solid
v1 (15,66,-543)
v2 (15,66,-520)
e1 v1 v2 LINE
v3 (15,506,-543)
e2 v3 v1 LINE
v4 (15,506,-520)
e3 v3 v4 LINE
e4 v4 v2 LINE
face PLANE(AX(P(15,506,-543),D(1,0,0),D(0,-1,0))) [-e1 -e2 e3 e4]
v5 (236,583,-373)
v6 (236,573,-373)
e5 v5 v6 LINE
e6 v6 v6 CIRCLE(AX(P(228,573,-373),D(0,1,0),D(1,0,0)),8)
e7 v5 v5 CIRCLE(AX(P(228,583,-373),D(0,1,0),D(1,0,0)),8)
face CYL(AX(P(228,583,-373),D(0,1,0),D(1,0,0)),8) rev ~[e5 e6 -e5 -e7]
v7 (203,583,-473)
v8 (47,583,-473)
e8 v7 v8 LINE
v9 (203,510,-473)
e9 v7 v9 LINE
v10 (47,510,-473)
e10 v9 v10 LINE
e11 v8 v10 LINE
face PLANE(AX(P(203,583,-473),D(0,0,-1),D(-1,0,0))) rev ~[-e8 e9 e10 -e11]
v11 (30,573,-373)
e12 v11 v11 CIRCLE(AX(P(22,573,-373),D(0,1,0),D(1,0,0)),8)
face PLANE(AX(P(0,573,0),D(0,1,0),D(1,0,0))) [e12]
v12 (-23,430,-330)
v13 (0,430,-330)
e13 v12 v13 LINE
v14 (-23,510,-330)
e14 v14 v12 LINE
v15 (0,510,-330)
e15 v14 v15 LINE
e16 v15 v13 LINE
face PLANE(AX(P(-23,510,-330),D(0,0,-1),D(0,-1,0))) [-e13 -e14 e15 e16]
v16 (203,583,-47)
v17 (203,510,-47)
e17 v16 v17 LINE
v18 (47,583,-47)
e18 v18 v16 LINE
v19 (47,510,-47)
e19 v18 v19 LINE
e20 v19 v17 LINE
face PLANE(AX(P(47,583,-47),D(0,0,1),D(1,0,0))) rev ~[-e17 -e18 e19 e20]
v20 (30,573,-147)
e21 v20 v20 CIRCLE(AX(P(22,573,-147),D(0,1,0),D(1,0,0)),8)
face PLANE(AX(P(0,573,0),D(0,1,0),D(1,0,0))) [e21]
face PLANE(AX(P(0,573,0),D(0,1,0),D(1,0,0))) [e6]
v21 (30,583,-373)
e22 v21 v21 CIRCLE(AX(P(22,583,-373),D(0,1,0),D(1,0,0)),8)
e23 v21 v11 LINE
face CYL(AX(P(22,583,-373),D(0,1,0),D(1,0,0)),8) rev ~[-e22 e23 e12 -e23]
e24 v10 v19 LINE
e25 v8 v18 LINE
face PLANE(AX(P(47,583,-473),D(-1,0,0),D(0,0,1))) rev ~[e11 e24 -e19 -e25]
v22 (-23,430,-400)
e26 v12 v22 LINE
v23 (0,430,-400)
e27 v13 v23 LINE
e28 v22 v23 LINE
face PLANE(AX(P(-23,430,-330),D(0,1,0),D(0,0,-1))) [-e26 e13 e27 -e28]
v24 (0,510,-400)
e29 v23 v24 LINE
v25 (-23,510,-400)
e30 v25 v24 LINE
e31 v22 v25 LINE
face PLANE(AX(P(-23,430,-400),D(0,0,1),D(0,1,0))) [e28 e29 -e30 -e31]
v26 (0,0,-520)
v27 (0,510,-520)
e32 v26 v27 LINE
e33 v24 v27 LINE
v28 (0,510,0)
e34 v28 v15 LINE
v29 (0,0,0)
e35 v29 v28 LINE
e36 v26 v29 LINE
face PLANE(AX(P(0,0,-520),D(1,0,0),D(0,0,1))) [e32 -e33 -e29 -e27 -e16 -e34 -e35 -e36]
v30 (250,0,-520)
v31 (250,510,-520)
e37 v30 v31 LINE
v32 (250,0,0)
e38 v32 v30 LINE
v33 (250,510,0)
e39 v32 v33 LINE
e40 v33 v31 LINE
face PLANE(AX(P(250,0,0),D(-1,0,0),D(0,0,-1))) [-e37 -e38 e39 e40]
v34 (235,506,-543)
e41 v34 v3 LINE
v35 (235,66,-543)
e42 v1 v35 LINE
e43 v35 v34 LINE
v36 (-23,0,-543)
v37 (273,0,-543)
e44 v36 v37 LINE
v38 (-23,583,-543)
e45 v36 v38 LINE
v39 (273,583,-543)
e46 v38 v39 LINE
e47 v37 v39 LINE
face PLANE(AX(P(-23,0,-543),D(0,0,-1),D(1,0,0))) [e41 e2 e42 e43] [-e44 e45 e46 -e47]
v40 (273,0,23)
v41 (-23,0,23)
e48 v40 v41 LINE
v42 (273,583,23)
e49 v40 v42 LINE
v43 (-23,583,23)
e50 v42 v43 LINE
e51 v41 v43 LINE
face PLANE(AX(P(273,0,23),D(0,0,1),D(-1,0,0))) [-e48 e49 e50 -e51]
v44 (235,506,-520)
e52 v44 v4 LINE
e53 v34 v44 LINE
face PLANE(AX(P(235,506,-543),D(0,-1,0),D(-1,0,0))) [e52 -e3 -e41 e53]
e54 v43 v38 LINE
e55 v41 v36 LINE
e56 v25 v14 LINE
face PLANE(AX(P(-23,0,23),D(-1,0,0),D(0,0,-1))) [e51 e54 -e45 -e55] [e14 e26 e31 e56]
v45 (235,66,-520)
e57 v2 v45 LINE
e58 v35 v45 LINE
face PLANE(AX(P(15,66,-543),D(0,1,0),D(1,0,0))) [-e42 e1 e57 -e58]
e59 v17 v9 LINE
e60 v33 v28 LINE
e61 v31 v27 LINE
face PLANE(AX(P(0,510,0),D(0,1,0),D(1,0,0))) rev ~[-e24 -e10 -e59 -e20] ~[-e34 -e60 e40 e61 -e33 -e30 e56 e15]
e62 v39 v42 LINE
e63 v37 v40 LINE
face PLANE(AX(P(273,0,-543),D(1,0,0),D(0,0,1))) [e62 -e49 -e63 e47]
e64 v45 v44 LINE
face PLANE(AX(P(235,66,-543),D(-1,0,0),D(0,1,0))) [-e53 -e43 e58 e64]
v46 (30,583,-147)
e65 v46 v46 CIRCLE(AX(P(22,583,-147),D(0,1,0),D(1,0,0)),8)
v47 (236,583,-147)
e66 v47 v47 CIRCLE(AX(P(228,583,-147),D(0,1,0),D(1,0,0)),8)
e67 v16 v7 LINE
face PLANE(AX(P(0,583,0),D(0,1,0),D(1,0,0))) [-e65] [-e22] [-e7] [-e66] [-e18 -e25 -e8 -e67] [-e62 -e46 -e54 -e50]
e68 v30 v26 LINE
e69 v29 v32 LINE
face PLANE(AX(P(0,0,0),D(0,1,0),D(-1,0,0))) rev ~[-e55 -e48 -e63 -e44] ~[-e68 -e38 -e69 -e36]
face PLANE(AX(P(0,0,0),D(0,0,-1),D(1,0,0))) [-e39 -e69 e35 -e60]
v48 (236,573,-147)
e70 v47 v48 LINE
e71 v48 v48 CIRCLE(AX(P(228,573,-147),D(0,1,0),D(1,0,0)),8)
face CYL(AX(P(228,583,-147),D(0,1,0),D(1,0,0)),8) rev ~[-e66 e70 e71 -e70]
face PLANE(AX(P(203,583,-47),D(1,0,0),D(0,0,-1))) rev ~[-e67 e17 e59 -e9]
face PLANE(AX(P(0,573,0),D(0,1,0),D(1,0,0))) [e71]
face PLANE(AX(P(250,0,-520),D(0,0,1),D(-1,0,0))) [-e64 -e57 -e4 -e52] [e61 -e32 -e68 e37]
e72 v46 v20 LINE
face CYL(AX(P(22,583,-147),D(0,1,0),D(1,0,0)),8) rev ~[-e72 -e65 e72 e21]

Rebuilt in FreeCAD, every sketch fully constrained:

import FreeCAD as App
import Part
import Sketcher

doc = App.newDocument("Part")
body = doc.addObject("PartDesign::Body", "Body")

# Sketch on XZ plane
sketch1 = doc.addObject("Sketcher::SketchObject", "Sketch")
body.addObject(sketch1)
sketch1.AttachmentSupport = (doc.XZ_Plane, [""])
sketch1.MapMode = "FlatFace"
sketch1.addGeometry([
    Part.LineSegment(App.Vector(273, -543, 0), App.Vector(-23, -543, 0)),  # 0
    Part.LineSegment(App.Vector(-23, -543, 0), App.Vector(-23, 23, 0)),  # 1
    Part.LineSegment(App.Vector(-23, 23, 0), App.Vector(273, 23, 0)),  # 2
    Part.LineSegment(App.Vector(273, 23, 0), App.Vector(273, -543, 0)),  # 3
    Part.LineSegment(App.Vector(250, 0, 0), App.Vector(0, 0, 0)),  # 4
    Part.LineSegment(App.Vector(0, 0, 0), App.Vector(0, -520, 0)),  # 5
    Part.LineSegment(App.Vector(0, -520, 0), App.Vector(250, -520, 0)),  # 6
    Part.LineSegment(App.Vector(250, -520, 0), App.Vector(250, 0, 0)),  # 7
], False)
sketch1.addConstraint([
    Sketcher.Constraint("Coincident", 0, 2, 1, 1),
    Sketcher.Constraint("Coincident", 1, 2, 2, 1),
    Sketcher.Constraint("Coincident", 2, 2, 3, 1),
    Sketcher.Constraint("Coincident", 3, 2, 0, 1),
    Sketcher.Constraint("Coincident", 4, 2, 5, 1),
    Sketcher.Constraint("Coincident", 5, 2, 6, 1),
    Sketcher.Constraint("Coincident", 6, 2, 7, 1),
    Sketcher.Constraint("Coincident", 7, 2, 4, 1),
    Sketcher.Constraint("Horizontal", 0),
    Sketcher.Constraint("Vertical", 1),
    Sketcher.Constraint("Horizontal", 2),
    Sketcher.Constraint("Vertical", 3),
    Sketcher.Constraint("Horizontal", 4),
    Sketcher.Constraint("Vertical", 5),
    Sketcher.Constraint("Horizontal", 6),
    Sketcher.Constraint("Vertical", 7),
    Sketcher.Constraint("Coincident", 4, 2, -1, 1),
    Sketcher.Constraint("DistanceX", 4, 2, 4, 1, 250.0),
    Sketcher.Constraint("DistanceY", 5, 2, 5, 1, 520.0),
    Sketcher.Constraint("DistanceX", 0, 2, -1, 1, 23.0),
    Sketcher.Constraint("DistanceY", -1, 1, 1, 2, 23.0),
    Sketcher.Constraint("DistanceY", 0, 2, 5, 2, 23.0),
    Sketcher.Constraint("DistanceX", 6, 2, 3, 2, 23.0),
])
pad1 = doc.addObject("PartDesign::Pad", "Pad")
body.addObject(pad1)
pad1.Profile = sketch1
pad1.Length = 583
pad1.Reversed = True

# Sketch on XY plane
sketch2 = doc.addObject("Sketcher::SketchObject", "Sketch001")
body.addObject(sketch2)
sketch2.AttachmentSupport = (doc.XY_Plane, [""])
sketch2.MapMode = "FlatFace"
sketch2.AttachmentOffset = App.Placement(App.Vector(0, 0, -543), App.Rotation())
sketch2.addGeometry([
    Part.LineSegment(App.Vector(15, 506, 0), App.Vector(235, 506, 0)),
    Part.LineSegment(App.Vector(235, 506, 0), App.Vector(235, 66, 0)),
    Part.LineSegment(App.Vector(235, 66, 0), App.Vector(15, 66, 0)),
    Part.LineSegment(App.Vector(15, 66, 0), App.Vector(15, 506, 0)),
], False)
sketch2.addConstraint([
    Sketcher.Constraint("Coincident", 0, 2, 1, 1),
    Sketcher.Constraint("Coincident", 1, 2, 2, 1),
    Sketcher.Constraint("Coincident", 2, 2, 3, 1),
    Sketcher.Constraint("Coincident", 3, 2, 0, 1),
    Sketcher.Constraint("Horizontal", 0),
    Sketcher.Constraint("Vertical", 1),
    Sketcher.Constraint("Horizontal", 2),
    Sketcher.Constraint("Vertical", 3),
    Sketcher.Constraint("DistanceX", 0, 1, 0, 2, 220.0),
    Sketcher.Constraint("DistanceY", 1, 2, 1, 1, 440.0),
    Sketcher.Constraint("DistanceX", -1, 1, 0, 2, 235.0),
    Sketcher.Constraint("DistanceY", -1, 1, 0, 2, 506.0),
])
pocket1 = doc.addObject("PartDesign::Pocket", "Pocket")
body.addObject(pocket1)
pocket1.Profile = sketch2
pocket1.Length = 23
pocket1.Reversed = True

# Sketch on YZ plane
sketch3 = doc.addObject("Sketcher::SketchObject", "Sketch002")
body.addObject(sketch3)
sketch3.AttachmentSupport = (doc.YZ_Plane, [""])
sketch3.MapMode = "FlatFace"
sketch3.AttachmentOffset = App.Placement(App.Vector(0, 0, -23), App.Rotation())
sketch3.addGeometry([
    Part.LineSegment(App.Vector(510, -330, 0), App.Vector(510, -400, 0)),
    Part.LineSegment(App.Vector(510, -400, 0), App.Vector(430, -400, 0)),
    Part.LineSegment(App.Vector(430, -400, 0), App.Vector(430, -330, 0)),
    Part.LineSegment(App.Vector(430, -330, 0), App.Vector(510, -330, 0)),
], False)
sketch3.addConstraint([
    Sketcher.Constraint("Coincident", 0, 2, 1, 1),
    Sketcher.Constraint("Coincident", 1, 2, 2, 1),
    Sketcher.Constraint("Coincident", 2, 2, 3, 1),
    Sketcher.Constraint("Coincident", 3, 2, 0, 1),
    Sketcher.Constraint("Vertical", 0),
    Sketcher.Constraint("Horizontal", 1),
    Sketcher.Constraint("Vertical", 2),
    Sketcher.Constraint("Horizontal", 3),
    Sketcher.Constraint("DistanceX", 1, 2, 1, 1, 80.0),
    Sketcher.Constraint("DistanceY", 0, 2, 0, 1, 70.0),
    Sketcher.Constraint("DistanceX", -1, 1, 1, 2, 430.0),
    Sketcher.Constraint("DistanceY", 0, 2, -1, 1, 400.0),
])
pocket2 = doc.addObject("PartDesign::Pocket", "Pocket001")
body.addObject(pocket2)
pocket2.Profile = sketch3
pocket2.Length = 23
pocket2.Reversed = True

# Sketch on XZ plane
sketch4 = doc.addObject("Sketcher::SketchObject", "Sketch003")
body.addObject(sketch4)
sketch4.AttachmentSupport = (doc.XZ_Plane, [""])
sketch4.MapMode = "FlatFace"
sketch4.AttachmentOffset = App.Placement(App.Vector(0, 0, -583), App.Rotation())
sketch4.addGeometry([
    Part.LineSegment(App.Vector(0, 0, 0), App.Vector(250, 0, 0)),  # 0
    Part.LineSegment(App.Vector(250, 0, 0), App.Vector(250, -520, 0)),  # 1
    Part.LineSegment(App.Vector(250, -520, 0), App.Vector(0, -520, 0)),  # 2
    Part.LineSegment(App.Vector(0, -520, 0), App.Vector(0, 0, 0)),  # 3
    Part.LineSegment(App.Vector(203, -47, 0), App.Vector(47, -47, 0)),  # 4
    Part.LineSegment(App.Vector(47, -47, 0), App.Vector(47, -473, 0)),  # 5
    Part.LineSegment(App.Vector(47, -473, 0), App.Vector(203, -473, 0)),  # 6
    Part.LineSegment(App.Vector(203, -473, 0), App.Vector(203, -47, 0)),  # 7
], False)
sketch4.addConstraint([
    Sketcher.Constraint("Coincident", 0, 2, 1, 1),
    Sketcher.Constraint("Coincident", 1, 2, 2, 1),
    Sketcher.Constraint("Coincident", 2, 2, 3, 1),
    Sketcher.Constraint("Coincident", 3, 2, 0, 1),
    Sketcher.Constraint("Coincident", 4, 2, 5, 1),
    Sketcher.Constraint("Coincident", 5, 2, 6, 1),
    Sketcher.Constraint("Coincident", 6, 2, 7, 1),
    Sketcher.Constraint("Coincident", 7, 2, 4, 1),
    Sketcher.Constraint("Horizontal", 0),
    Sketcher.Constraint("Vertical", 1),
    Sketcher.Constraint("Horizontal", 2),
    Sketcher.Constraint("Vertical", 3),
    Sketcher.Constraint("Horizontal", 4),
    Sketcher.Constraint("Vertical", 5),
    Sketcher.Constraint("Horizontal", 6),
    Sketcher.Constraint("Vertical", 7),
    Sketcher.Constraint("Coincident", 3, 2, -1, 1),
    Sketcher.Constraint("DistanceX", -1, 1, 4, 2, 47.0),
    Sketcher.Constraint("DistanceY", 4, 2, -1, 1, 47.0),
    Sketcher.Constraint("DistanceY", 2, 2, 5, 2, 47.0),
    Sketcher.Constraint("DistanceX", 6, 2, 1, 2, 47.0),
    Sketcher.Constraint("DistanceX", 0, 1, 0, 2, 250.0),
    Sketcher.Constraint("DistanceY", 1, 2, 1, 1, 520.0),
])
pad2 = doc.addObject("PartDesign::Pad", "Pad001")
body.addObject(pad2)
pad2.Profile = sketch4
pad2.Length = 73

# Sketch on XZ plane
sketch5 = doc.addObject("Sketcher::SketchObject", "Sketch004")
body.addObject(sketch5)
sketch5.AttachmentSupport = (doc.XZ_Plane, [""])
sketch5.MapMode = "FlatFace"
sketch5.AttachmentOffset = App.Placement(App.Vector(0, 0, -583), App.Rotation())
sketch5.addGeometry([
    Part.Circle(App.Vector(228, -373, 0), App.Vector(0, 0, 1), 8),
    Part.Circle(App.Vector(228, -147, 0), App.Vector(0, 0, 1), 8),
    Part.Circle(App.Vector(22, -373, 0), App.Vector(0, 0, 1), 8),
    Part.Circle(App.Vector(22, -147, 0), App.Vector(0, 0, 1), 8),
], False)
sketch5.addConstraint([
    Sketcher.Constraint("Equal", 0, 1),
    Sketcher.Constraint("Equal", 1, 2),
    Sketcher.Constraint("Equal", 2, 3),
    Sketcher.Constraint("Horizontal", 0, 3, 2, 3),
    Sketcher.Constraint("Horizontal", 1, 3, 3, 3),
    Sketcher.Constraint("Vertical", 0, 3, 1, 3),
    Sketcher.Constraint("Vertical", 2, 3, 3, 3),
    Sketcher.Constraint("Diameter", 0, 16.0),
    Sketcher.Constraint("DistanceX", -1, 1, 0, 3, 228.0),
    Sketcher.Constraint("DistanceY", 0, 3, -1, 1, 373.0),
    Sketcher.Constraint("DistanceY", 1, 3, -1, 1, 147.0),
    Sketcher.Constraint("DistanceX", -1, 1, 2, 3, 22.0),
])
pocket3 = doc.addObject("PartDesign::Pocket", "Pocket002")
body.addObject(pocket3)
pocket3.Profile = sketch5
pocket3.Length = 10
pocket3.Reversed = True

doc.recompute()
